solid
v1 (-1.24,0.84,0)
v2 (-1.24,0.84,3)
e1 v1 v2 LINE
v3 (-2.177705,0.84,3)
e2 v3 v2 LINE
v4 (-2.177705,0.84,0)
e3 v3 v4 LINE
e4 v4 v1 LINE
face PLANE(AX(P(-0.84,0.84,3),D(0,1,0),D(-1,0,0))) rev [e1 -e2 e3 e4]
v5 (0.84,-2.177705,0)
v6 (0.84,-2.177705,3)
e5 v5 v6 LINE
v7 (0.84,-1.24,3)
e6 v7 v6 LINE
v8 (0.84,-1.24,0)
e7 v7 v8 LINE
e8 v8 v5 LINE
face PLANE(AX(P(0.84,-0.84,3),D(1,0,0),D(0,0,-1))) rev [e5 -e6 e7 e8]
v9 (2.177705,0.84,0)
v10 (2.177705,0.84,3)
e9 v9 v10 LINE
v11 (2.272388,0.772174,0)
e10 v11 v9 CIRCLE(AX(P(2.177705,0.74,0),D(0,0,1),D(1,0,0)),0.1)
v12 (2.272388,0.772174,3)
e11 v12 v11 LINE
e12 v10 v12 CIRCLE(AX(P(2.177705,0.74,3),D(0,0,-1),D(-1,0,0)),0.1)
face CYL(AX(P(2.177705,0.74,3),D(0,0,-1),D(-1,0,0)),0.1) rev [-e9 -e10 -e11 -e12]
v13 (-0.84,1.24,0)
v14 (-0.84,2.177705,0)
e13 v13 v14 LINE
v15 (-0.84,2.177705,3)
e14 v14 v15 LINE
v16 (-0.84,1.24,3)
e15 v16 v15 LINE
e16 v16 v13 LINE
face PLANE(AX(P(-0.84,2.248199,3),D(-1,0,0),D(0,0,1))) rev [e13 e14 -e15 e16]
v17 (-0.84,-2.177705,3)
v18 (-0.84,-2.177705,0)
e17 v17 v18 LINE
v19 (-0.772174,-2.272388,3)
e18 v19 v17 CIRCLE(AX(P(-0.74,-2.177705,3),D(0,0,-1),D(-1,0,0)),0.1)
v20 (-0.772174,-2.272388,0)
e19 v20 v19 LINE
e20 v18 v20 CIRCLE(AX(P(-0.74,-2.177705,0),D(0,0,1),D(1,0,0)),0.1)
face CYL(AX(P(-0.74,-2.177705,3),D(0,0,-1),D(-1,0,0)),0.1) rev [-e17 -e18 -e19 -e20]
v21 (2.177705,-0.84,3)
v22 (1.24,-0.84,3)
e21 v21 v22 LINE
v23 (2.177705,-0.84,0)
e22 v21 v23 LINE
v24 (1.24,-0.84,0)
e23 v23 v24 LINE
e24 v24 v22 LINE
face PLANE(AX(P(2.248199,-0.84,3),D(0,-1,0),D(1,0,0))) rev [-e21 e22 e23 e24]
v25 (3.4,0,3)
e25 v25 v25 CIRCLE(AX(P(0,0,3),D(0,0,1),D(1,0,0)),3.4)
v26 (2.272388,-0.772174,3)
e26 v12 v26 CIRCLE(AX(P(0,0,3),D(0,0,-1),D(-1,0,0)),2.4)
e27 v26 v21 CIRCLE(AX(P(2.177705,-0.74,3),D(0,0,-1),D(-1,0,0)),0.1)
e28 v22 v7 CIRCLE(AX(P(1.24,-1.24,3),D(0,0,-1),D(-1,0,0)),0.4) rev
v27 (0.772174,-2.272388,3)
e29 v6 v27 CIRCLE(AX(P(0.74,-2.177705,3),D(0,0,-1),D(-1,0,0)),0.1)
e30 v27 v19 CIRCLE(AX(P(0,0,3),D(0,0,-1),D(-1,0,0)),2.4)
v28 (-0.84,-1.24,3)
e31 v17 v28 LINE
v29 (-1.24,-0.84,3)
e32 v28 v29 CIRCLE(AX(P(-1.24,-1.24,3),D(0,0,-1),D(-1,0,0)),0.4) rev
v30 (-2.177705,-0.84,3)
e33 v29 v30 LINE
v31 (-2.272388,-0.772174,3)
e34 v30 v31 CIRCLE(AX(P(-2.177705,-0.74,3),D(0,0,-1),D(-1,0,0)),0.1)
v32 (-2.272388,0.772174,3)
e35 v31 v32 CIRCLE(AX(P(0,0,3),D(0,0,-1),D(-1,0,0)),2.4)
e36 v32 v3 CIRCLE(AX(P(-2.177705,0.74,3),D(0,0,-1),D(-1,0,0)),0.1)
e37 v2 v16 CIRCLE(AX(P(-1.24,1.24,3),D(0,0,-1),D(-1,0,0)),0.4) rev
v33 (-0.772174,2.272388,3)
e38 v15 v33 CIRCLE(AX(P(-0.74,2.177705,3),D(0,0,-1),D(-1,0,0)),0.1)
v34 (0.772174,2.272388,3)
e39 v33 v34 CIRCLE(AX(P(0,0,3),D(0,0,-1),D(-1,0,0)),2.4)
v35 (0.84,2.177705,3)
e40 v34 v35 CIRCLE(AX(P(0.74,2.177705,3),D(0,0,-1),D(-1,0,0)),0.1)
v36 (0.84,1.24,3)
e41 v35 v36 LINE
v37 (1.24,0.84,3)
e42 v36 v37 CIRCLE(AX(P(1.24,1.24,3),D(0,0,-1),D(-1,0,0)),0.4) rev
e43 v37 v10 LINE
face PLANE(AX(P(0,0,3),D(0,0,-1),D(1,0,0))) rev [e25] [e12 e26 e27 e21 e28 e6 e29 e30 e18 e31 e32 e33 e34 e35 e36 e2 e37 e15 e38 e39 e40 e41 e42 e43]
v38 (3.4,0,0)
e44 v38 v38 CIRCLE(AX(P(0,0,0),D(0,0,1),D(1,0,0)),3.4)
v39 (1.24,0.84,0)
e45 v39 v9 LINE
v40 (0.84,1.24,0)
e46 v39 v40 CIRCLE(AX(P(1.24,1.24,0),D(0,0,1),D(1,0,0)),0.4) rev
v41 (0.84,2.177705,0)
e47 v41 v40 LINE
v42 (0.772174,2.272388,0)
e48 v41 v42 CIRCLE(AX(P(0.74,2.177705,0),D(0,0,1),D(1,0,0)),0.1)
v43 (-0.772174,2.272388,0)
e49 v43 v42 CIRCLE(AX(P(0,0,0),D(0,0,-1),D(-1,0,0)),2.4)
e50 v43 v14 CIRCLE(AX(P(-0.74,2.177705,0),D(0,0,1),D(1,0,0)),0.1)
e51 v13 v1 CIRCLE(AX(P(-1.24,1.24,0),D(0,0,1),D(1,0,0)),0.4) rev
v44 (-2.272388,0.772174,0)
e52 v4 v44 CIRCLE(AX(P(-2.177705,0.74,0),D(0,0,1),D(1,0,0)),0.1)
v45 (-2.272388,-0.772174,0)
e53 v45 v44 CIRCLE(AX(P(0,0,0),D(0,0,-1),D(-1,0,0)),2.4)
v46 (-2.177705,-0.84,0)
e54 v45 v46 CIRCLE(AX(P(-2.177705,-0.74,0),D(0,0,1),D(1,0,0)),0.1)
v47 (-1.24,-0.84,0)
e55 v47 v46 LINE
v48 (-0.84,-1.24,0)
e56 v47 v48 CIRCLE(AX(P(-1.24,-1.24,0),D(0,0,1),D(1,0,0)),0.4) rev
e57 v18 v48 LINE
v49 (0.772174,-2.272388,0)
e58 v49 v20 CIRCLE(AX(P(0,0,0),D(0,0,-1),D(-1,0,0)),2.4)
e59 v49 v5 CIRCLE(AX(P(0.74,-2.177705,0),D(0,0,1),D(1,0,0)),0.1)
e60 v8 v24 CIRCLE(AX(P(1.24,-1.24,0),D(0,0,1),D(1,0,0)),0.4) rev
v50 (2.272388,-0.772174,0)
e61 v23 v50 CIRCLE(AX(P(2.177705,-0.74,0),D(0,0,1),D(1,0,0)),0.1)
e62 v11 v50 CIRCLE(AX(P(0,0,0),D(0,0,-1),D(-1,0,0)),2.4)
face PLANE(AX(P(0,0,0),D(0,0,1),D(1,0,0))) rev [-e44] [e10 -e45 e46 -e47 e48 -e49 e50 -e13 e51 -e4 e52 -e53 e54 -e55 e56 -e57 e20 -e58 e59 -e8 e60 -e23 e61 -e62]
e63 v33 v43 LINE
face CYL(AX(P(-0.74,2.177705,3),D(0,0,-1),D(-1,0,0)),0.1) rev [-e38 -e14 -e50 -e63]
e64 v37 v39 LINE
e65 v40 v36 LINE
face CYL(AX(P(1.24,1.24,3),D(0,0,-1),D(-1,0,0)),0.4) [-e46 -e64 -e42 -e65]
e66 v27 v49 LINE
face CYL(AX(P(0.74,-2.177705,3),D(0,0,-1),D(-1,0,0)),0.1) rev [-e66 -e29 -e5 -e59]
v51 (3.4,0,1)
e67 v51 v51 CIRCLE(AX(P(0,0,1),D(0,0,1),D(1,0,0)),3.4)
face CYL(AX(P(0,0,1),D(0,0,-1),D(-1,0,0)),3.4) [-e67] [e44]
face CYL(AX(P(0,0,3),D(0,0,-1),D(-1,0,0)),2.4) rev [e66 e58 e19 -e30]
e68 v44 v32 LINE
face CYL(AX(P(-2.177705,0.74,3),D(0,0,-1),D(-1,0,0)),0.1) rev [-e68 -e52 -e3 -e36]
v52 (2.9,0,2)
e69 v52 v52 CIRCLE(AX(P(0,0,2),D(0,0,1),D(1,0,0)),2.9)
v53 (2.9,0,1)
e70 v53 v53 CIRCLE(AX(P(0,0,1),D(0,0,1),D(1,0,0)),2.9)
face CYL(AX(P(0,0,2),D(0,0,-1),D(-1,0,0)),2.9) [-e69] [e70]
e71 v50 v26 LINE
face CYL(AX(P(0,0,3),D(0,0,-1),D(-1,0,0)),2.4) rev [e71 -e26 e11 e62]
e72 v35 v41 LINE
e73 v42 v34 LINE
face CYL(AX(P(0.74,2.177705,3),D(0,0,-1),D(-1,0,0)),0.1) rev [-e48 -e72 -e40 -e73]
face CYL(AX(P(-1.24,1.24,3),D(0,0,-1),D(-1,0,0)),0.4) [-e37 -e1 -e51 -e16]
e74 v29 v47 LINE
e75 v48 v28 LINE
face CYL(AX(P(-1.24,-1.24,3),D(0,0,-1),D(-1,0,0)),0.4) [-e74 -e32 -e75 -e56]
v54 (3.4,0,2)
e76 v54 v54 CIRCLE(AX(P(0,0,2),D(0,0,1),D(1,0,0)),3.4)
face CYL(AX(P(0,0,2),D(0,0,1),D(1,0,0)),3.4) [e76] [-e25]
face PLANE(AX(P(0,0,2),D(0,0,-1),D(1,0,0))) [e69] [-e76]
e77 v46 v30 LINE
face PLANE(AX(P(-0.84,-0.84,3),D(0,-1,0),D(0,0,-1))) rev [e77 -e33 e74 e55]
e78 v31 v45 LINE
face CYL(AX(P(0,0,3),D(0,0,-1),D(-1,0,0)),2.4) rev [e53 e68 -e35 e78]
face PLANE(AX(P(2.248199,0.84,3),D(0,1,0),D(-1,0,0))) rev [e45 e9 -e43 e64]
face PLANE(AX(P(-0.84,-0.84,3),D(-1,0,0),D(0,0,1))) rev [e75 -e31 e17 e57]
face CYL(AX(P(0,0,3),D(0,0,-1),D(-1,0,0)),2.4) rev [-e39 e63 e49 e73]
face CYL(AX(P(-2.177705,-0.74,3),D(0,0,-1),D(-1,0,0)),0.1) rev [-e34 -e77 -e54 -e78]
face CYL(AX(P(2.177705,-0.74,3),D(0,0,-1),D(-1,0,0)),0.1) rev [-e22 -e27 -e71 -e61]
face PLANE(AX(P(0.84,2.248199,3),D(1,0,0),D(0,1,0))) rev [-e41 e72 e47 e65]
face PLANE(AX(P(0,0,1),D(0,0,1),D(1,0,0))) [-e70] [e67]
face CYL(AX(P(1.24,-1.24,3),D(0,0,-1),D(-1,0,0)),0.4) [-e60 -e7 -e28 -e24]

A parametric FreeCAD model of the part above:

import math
import FreeCAD as App
import Part
import Sketcher
from FreeCAD import Vector


def edges_at(feature, points):
    """Names of the edges that pass closest to the given points."""
    edges = feature.Shape.Edges
    near = lambda p: min(range(len(edges)), key=lambda i: edges[i].distToShape(Part.Vertex(*p))[0])
    return sorted({f"Edge{near(p) + 1}" for p in points})

doc = App.newDocument("Part")
body = doc.addObject("PartDesign::Body", "Body")

sketch1 = body.newObject("Sketcher::SketchObject", "Sketch")
sketch1.AttachmentSupport = (doc.getObject("XY_Plane"), [""])
sketch1.MapMode = "FlatFace"
sketch1.addGeometry(Part.Circle(Vector(0, 0, 0), Vector(0, 0, 1), 3.4), False)
sketch1.addConstraint([
    Sketcher.Constraint("Coincident", 0, 3, -1, 1),
    Sketcher.Constraint("Diameter", 0, 6.8),
])
pad1 = body.newObject("PartDesign::Pad", "Pad")
pad1.Profile = sketch1
pad1.Length = 1

sketch2 = body.newObject("Sketcher::SketchObject", "Sketch001")
sketch2.AttachmentSupport = (doc.getObject("XY_Plane"), [""])
sketch2.MapMode = "FlatFace"
sketch2.AttachmentOffset = App.Placement(Vector(0, 0, 1), App.Rotation())
sketch2.addGeometry(Part.Circle(Vector(0, 0, 0), Vector(0, 0, 1), 2.9), False)
sketch2.addConstraint([
    Sketcher.Constraint("Coincident", 0, 3, -1, 1),
    Sketcher.Constraint("Diameter", 0, 5.8),
])
pad2 = body.newObject("PartDesign::Pad", "Pad001")
pad2.Profile = sketch2
pad2.Length = 1
doc.recompute()

datumplane = body.newObject("PartDesign::Plane", "DatumPlane")
datumplane.AttachmentSupport = (doc.getObject("XY_Plane"), [""])
datumplane.MapMode = "FlatFace"
datumplane.AttachmentOffset = App.Placement(Vector(0, 0, 1.5), App.Rotation())
mirrored = body.newObject("PartDesign::Mirrored", "Mirrored")
mirrored.Originals = [pad1]
mirrored.MirrorPlane = (datumplane, [""])
body.Tip = mirrored

sketch3 = body.newObject("Sketcher::SketchObject", "Sketch002")
sketch3.AttachmentSupport = (doc.getObject("XY_Plane"), [""])
sketch3.MapMode = "FlatFace"
sketch3.addGeometry([
    Part.LineSegment(Vector(-0.8, -2.2, 0), Vector(-0.8, -0.8, 0)),
    Part.LineSegment(Vector(-0.8, -0.8, 0), Vector(-2.2, -0.8, 0)),
    Part.ArcOfCircle(Part.Circle(Vector(0, 0, 0), Vector(0, 0, 1), 2.4), math.radians(160), math.radians(200)),
    Part.LineSegment(Vector(-2.2, 0.8, 0), Vector(-0.8, 0.8, 0)),
    Part.LineSegment(Vector(-0.8, 0.8, 0), Vector(-0.8, 2.2, 0)),
    Part.ArcOfCircle(Part.Circle(Vector(0, 0, 0), Vector(0, 0, 1), 2.4), math.radians(70), math.radians(110)),
    Part.LineSegment(Vector(0.8, 2.2, 0), Vector(0.8, 0.8, 0)),
    Part.LineSegment(Vector(0.8, 0.8, 0), Vector(2.2, 0.8, 0)),
    Part.ArcOfCircle(Part.Circle(Vector(0, 0, 0), Vector(0, 0, 1), 2.4), math.radians(-20), math.radians(20)),
    Part.LineSegment(Vector(2.2, -0.8, 0), Vector(0.8, -0.8, 0)),
    Part.LineSegment(Vector(0.8, -0.8, 0), Vector(0.8, -2.2, 0)),
    Part.ArcOfCircle(Part.Circle(Vector(0, 0, 0), Vector(0, 0, 1), 2.4), math.radians(-110), math.radians(-70)),
], False)
sketch3.addConstraint([
    Sketcher.Constraint("Coincident", 0, 2, 1, 1),
    Sketcher.Constraint("Coincident", 1, 2, 2, 2),
    Sketcher.Constraint("Coincident", 2, 1, 3, 1),
    Sketcher.Constraint("Coincident", 3, 2, 4, 1),
    Sketcher.Constraint("Coincident", 4, 2, 5, 2),
    Sketcher.Constraint("Coincident", 5, 1, 6, 1),
    Sketcher.Constraint("Coincident", 6, 2, 7, 1),
    Sketcher.Constraint("Coincident", 7, 2, 8, 2),
    Sketcher.Constraint("Coincident", 8, 1, 9, 1),
    Sketcher.Constraint("Coincident", 9, 2, 10, 1),
    Sketcher.Constraint("Coincident", 10, 2, 11, 2),
    Sketcher.Constraint("Coincident", 11, 1, 0, 1),
    Sketcher.Constraint("Vertical", 0),
    Sketcher.Constraint("Horizontal", 1),
    Sketcher.Constraint("Horizontal", 3),
    Sketcher.Constraint("Vertical", 4),
    Sketcher.Constraint("Vertical", 6),
    Sketcher.Constraint("Horizontal", 7),
    Sketcher.Constraint("Horizontal", 9),
    Sketcher.Constraint("Vertical", 10),
    Sketcher.Constraint("Coincident", 2, 3, -1, 1),
    Sketcher.Constraint("Coincident", 5, 3, -1, 1),
    Sketcher.Constraint("Coincident", 8, 3, -1, 1),
    Sketcher.Constraint("Coincident", 11, 3, -1, 1),
    Sketcher.Constraint("Equal", 2, 5),
    Sketcher.Constraint("Equal", 5, 8),
    Sketcher.Constraint("Equal", 8, 11),
    Sketcher.Constraint("Symmetric", 0, 2, 6, 2, -1, 1),
    Sketcher.Constraint("Symmetric", 3, 2, 9, 2, -1, 1),
    Sketcher.Constraint("Symmetric", 3, 2, 6, 2, -2),
    Sketcher.Constraint("Equal", 9, 0),
    Sketcher.Constraint("Radius", 2, 2.4),
    Sketcher.Constraint("DistanceX", 0, 2, -1, 1, 0.84),
])
pocket1 = body.newObject("PartDesign::Pocket", "Pocket")
pocket1.Profile = sketch3
pocket1.Type = "ThroughAll"
pocket1.Reversed = True
doc.recompute()

fillet = body.newObject("PartDesign::Fillet", "Fillet")
fillet.Base = (pocket1, edges_at(pocket1, [(-0.84, 0.84, 1.5)]))
fillet.Radius = 0.4
doc.recompute()

fillet2 = body.newObject("PartDesign::Fillet", "Fillet001")
fillet2.Base = (fillet, edges_at(fillet, [(0.84, 0.84, 1.5)]))
fillet2.Radius = 0.4
doc.recompute()

fillet3 = body.newObject("PartDesign::Fillet", "Fillet002")
fillet3.Base = (fillet2, edges_at(fillet2, [(0.84, -0.84, 1.5)]))
fillet3.Radius = 0.4
doc.recompute()

fillet4 = body.newObject("PartDesign::Fillet", "Fillet003")
fillet4.Base = (fillet3, edges_at(fillet3, [(-0.84, -0.84, 1.5)]))
fillet4.Radius = 0.4
doc.recompute()

fillet5 = body.newObject("PartDesign::Fillet", "Fillet004")
fillet5.Base = (fillet4, edges_at(fillet4, [(0.84, -2.248, 1.5)]))
fillet5.Radius = 0.1
doc.recompute()

fillet6 = body.newObject("PartDesign::Fillet", "Fillet005")
fillet6.Base = (fillet5, edges_at(fillet5, [(-0.84, -2.248, 1.5)]))
fillet6.Radius = 0.1
doc.recompute()

fillet7 = body.newObject("PartDesign::Fillet", "Fillet006")
fillet7.Base = (fillet6, edges_at(fillet6, [(-2.248, 0.84, 1.5)]))
fillet7.Radius = 0.1
doc.recompute()

fillet8 = body.newObject("PartDesign::Fillet", "Fillet007")
fillet8.Base = (fillet7, edges_at(fillet7, [(-2.248, -0.84, 1.5)]))
fillet8.Radius = 0.1
doc.recompute()

fillet9 = body.newObject("PartDesign::Fillet", "Fillet008")
fillet9.Base = (fillet8, edges_at(fillet8, [(-0.84, 2.248, 1.5)]))
fillet9.Radius = 0.1
doc.recompute()

fillet10 = body.newObject("PartDesign::Fillet", "Fillet009")
fillet10.Base = (fillet9, edges_at(fillet9, [(0.84, 2.248, 1.5)]))
fillet10.Radius = 0.1
doc.recompute()

fillet11 = body.newObject("PartDesign::Fillet", "Fillet010")
fillet11.Base = (fillet10, edges_at(fillet10, [(2.248, 0.84, 1.5)]))
fillet11.Radius = 0.1
doc.recompute()

fillet12 = body.newObject("PartDesign::Fillet", "Fillet011")
fillet12.Base = (fillet11, edges_at(fillet11, [(2.248, -0.84, 1.5)]))
fillet12.Radius = 0.1

doc.recompute()
